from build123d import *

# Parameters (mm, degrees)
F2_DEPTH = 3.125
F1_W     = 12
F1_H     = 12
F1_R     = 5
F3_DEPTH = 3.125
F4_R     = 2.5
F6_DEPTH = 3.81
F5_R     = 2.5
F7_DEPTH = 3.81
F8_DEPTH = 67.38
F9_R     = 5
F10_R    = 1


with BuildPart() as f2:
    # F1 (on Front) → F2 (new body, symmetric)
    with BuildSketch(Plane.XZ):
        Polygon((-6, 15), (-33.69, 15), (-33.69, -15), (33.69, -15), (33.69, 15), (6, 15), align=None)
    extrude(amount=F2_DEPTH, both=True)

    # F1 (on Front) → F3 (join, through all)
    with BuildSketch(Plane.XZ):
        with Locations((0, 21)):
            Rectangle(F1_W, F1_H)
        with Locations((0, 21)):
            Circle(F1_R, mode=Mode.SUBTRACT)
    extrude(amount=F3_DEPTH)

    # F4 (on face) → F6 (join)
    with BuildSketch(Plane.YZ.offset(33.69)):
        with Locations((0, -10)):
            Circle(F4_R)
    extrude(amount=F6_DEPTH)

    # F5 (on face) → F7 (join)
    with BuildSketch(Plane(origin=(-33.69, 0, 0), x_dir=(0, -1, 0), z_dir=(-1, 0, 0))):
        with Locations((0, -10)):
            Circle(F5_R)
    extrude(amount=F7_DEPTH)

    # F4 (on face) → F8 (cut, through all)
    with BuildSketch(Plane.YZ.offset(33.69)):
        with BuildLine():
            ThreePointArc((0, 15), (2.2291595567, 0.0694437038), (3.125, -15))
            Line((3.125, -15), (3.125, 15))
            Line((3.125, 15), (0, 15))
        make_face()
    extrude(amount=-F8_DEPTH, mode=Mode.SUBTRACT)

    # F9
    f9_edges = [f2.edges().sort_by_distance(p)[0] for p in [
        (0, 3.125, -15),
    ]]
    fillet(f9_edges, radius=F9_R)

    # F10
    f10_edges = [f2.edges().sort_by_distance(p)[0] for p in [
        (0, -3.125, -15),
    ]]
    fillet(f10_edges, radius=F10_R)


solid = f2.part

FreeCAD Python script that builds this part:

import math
import FreeCAD as App
import Part
import Sketcher
from FreeCAD import Vector
Q = App.Units.Quantity


def edges_at(feature, points):
    """Names of the edges that pass closest to the given points."""
    edges = feature.Shape.Edges
    near = lambda p: min(range(len(edges)), key=lambda i: edges[i].distToShape(Part.Vertex(*p))[0])
    return sorted({f"Edge{near(p) + 1}" for p in points})

doc = App.newDocument("Part")
body = doc.addObject("PartDesign::Body", "Body")

# Sketch on XZ plane
sketch1 = body.newObject("Sketcher::SketchObject", "Sketch")
sketch1.AttachmentSupport = (doc.getObject("XZ_Plane"), [""])
sketch1.MapMode = "FlatFace"
sketch1.addGeometry([
    Part.LineSegment(Vector(-34, 15, 0), Vector(-34, -15, 0)),
    Part.LineSegment(Vector(-34, -15, 0), Vector(34, -15, 0)),
    Part.LineSegment(Vector(34, -15, 0), Vector(34, 15, 0)),
    Part.LineSegment(Vector(34, 15, 0), Vector(-34, 15, 0)),
], False)
sketch1.addConstraint([
    Sketcher.Constraint("Coincident", 0, 2, 1, 1),
    Sketcher.Constraint("Coincident", 1, 2, 2, 1),
    Sketcher.Constraint("Coincident", 2, 2, 3, 1),
    Sketcher.Constraint("Coincident", 3, 2, 0, 1),
    Sketcher.Constraint("Vertical", 0),
    Sketcher.Constraint("Horizontal", 1),
    Sketcher.Constraint("Vertical", 2),
    Sketcher.Constraint("Horizontal", 3),
    Sketcher.Constraint("Symmetric", 0, 2, 2, 2, -1, 1),
    Sketcher.Constraint("DistanceY", 0, 2, 0, 1, Q("30 mm")),
    Sketcher.Constraint("DistanceX", 1, 1, 1, 2, Q("67.38 mm")),
])
pad1 = body.newObject("PartDesign::Pad", "Pad")
pad1.Profile = sketch1
pad1.Length = 6.25
pad1.Midplane = True

# Sketch on XZ plane
sketch2 = body.newObject("Sketcher::SketchObject", "Sketch001")
sketch2.AttachmentSupport = (doc.getObject("XZ_Plane"), [""])
sketch2.MapMode = "FlatFace"
sketch2.addGeometry([
    Part.LineSegment(Vector(-6, 27, 0), Vector(-6, 15, 0)),  # 0
    Part.LineSegment(Vector(-6, 15, 0), Vector(6, 15, 0)),  # 1
    Part.LineSegment(Vector(6, 15, 0), Vector(6, 27, 0)),  # 2
    Part.LineSegment(Vector(6, 27, 0), Vector(-6, 27, 0)),  # 3
    Part.Circle(Vector(0, 21, 0), Vector(0, 0, 1), 5),  # 4
], False)
sketch2.addConstraint([
    Sketcher.Constraint("Coincident", 0, 2, 1, 1),
    Sketcher.Constraint("Coincident", 1, 2, 2, 1),
    Sketcher.Constraint("Coincident", 2, 2, 3, 1),
    Sketcher.Constraint("Coincident", 3, 2, 0, 1),
    Sketcher.Constraint("Vertical", 0),
    Sketcher.Constraint("Horizontal", 1),
    Sketcher.Constraint("Vertical", 2),
    Sketcher.Constraint("Horizontal", 3),
    Sketcher.Constraint("PointOnObject", 4, 3, -2),
    Sketcher.Constraint("Equal", 3, 0),
    Sketcher.Constraint("Diameter", 4, Q("10 mm")),
    Sketcher.Constraint("DistanceX", 1, 1, 1, 2, Q("12 mm")),
    Sketcher.Constraint("DistanceY", -1, 1, 4, 3, Q("21 mm")),
    Sketcher.Constraint("DistanceX", 0, 2, -1, 1, Q("6 mm")),
    Sketcher.Constraint("DistanceY", -1, 1, 0, 2, Q("15 mm")),
])
pad2 = body.newObject("PartDesign::Pad", "Pad001")
pad2.Profile = sketch2
pad2.Length = 3.125

# Sketch on YZ plane
sketch3 = body.newObject("Sketcher::SketchObject", "Sketch002")
sketch3.AttachmentSupport = (doc.getObject("YZ_Plane"), [""])
sketch3.MapMode = "FlatFace"
sketch3.AttachmentOffset = App.Placement(Vector(0, 0, 33.69), App.Rotation())
sketch3.addGeometry(Part.Circle(Vector(0, -10, 0), Vector(0, 0, 1), 2.5), False)
sketch3.addConstraint([
    Sketcher.Constraint("PointOnObject", 0, 3, -2),
    Sketcher.Constraint("Diameter", 0, Q("5 mm")),
    Sketcher.Constraint("DistanceY", 0, 3, -1, 1, Q("10 mm")),
])
pad3 = body.newObject("PartDesign::Pad", "Pad002")
pad3.Profile = sketch3
pad3.Length = 3.81

# Sketch on YZ plane
sketch4 = body.newObject("Sketcher::SketchObject", "Sketch003")
sketch4.AttachmentSupport = (doc.getObject("YZ_Plane"), [""])
sketch4.MapMode = "FlatFace"
sketch4.AttachmentOffset = App.Placement(Vector(0, 0, -33.69), App.Rotation())
sketch4.addGeometry(Part.Circle(Vector(0, -10, 0), Vector(0, 0, 1), 2.5), False)
sketch4.addConstraint([
    Sketcher.Constraint("PointOnObject", 0, 3, -2),
    Sketcher.Constraint("Diameter", 0, Q("5 mm")),
    Sketcher.Constraint("DistanceY", 0, 3, -1, 1, Q("10 mm")),
])
pad4 = body.newObject("PartDesign::Pad", "Pad003")
pad4.Profile = sketch4
pad4.Length = 3.81
pad4.Reversed = True

# Sketch on YZ plane
sketch5 = body.newObject("Sketcher::SketchObject", "Sketch004")
sketch5.AttachmentSupport = (doc.getObject("YZ_Plane"), [""])
sketch5.MapMode = "FlatFace"
sketch5.AttachmentOffset = App.Placement(Vector(0, 0, 33.69), App.Rotation())
sketch5.addGeometry([
    Part.ArcOfCircle(Part.Circle(Vector(-166.9, -17.5, 0), Vector(0, 0, 1), 170), math.radians(0.86), math.radians(11.04)),
    Part.LineSegment(Vector(3.1, -15, 0), Vector(3.1, 15, 0)),
    Part.LineSegment(Vector(3.1, 15, 0), Vector(0, 15, 0)),
], False)
sketch5.addConstraint([
    Sketcher.Constraint("Coincident", 0, 1, 1, 1),
    Sketcher.Constraint("Coincident", 1, 2, 2, 1),
    Sketcher.Constraint("Coincident", 2, 2, 0, 2),
    Sketcher.Constraint("Vertical", 1),
    Sketcher.Constraint("Horizontal", 2),
    Sketcher.Constraint("PointOnObject", 2, 2, -2),
    Sketcher.Constraint("Radius", 0, Q("170 mm")),
    Sketcher.Constraint("DistanceY", 1, 1, 1, 2, Q("30 mm")),
    Sketcher.Constraint("DistanceY", 0, 1, -1, 1, Q("15 mm")),
    Sketcher.Constraint("DistanceX", 2, 2, 2, 1, Q("3.125 mm")),
])
pocket1 = body.newObject("PartDesign::Pocket", "Pocket")
pocket1.Profile = sketch5
pocket1.Type = "ThroughAll"
doc.recompute()

fillet = body.newObject("PartDesign::Fillet", "Fillet")
fillet.Base = (pocket1, edges_at(pocket1, [(0, 3.125, -15)]))
fillet.Radius = 5
doc.recompute()

fillet2 = body.newObject("PartDesign::Fillet", "Fillet001")
fillet2.Base = (fillet, edges_at(fillet, [(0, -3.125, -15)]))
fillet2.Radius = 1

doc.recompute()
